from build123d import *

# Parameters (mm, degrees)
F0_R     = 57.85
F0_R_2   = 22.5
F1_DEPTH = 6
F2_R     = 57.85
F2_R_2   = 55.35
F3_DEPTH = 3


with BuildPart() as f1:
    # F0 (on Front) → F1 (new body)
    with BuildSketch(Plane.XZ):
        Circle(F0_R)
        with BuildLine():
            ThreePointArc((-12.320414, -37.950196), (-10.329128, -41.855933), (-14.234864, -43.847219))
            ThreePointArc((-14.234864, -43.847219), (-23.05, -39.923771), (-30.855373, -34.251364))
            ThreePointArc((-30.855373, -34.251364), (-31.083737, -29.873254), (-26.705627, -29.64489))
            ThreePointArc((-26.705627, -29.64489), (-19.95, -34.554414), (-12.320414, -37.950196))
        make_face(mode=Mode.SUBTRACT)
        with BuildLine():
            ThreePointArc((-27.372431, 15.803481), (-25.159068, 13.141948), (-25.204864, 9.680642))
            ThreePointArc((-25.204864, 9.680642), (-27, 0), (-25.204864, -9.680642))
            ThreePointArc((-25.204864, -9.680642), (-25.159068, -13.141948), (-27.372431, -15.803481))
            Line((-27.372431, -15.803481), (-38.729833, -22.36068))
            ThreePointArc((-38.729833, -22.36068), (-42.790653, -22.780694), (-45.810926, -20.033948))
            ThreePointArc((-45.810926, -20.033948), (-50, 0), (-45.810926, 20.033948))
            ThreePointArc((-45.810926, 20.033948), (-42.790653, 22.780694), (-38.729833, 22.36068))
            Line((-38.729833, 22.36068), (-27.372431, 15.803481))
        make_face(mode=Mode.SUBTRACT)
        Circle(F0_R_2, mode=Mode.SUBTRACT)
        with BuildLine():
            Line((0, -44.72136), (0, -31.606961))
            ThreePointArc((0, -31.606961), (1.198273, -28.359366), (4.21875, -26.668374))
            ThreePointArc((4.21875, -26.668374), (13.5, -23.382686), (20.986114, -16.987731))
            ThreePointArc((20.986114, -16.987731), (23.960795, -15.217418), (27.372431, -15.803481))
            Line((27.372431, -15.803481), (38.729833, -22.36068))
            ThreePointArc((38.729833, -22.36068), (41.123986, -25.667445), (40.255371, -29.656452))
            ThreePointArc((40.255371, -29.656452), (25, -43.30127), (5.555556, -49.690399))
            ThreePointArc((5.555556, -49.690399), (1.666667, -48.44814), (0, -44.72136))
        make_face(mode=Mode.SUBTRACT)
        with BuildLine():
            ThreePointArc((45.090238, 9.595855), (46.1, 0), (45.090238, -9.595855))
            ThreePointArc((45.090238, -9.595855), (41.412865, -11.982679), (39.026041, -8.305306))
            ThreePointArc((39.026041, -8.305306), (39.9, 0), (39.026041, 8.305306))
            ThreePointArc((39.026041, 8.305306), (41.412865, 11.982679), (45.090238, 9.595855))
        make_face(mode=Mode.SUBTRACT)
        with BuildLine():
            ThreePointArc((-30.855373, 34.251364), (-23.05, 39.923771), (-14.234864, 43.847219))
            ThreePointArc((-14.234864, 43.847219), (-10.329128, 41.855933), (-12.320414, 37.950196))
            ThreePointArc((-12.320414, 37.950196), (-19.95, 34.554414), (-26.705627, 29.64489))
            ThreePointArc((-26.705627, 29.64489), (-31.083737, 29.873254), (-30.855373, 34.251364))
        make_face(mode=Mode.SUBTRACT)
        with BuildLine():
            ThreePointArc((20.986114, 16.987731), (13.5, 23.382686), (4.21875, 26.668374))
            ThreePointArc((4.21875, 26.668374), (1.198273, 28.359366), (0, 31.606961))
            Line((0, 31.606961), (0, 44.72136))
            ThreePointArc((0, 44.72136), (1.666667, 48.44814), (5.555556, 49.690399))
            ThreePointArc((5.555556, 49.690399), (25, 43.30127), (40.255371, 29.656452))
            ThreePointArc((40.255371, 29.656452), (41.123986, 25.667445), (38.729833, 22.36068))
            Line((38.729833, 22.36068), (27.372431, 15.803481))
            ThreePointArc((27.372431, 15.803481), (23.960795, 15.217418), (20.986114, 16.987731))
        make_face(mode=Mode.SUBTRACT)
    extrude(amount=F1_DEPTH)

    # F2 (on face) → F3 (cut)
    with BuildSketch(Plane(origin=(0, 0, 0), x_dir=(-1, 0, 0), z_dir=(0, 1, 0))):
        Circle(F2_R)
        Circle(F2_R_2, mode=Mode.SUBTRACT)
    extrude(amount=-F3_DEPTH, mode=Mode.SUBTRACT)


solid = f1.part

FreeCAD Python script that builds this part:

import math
import FreeCAD as App
import Part
import Sketcher
from FreeCAD import Vector
Q = App.Units.Quantity

doc = App.newDocument("Part")
body = doc.addObject("PartDesign::Body", "Body")

sketch1 = body.newObject("Sketcher::SketchObject", "Sketch")
sketch1.AttachmentSupport = (doc.getObject("XZ_Plane"), [""])
sketch1.MapMode = "FlatFace"
sketch1.addGeometry([
    Part.Circle(Vector(0, 0, 0), Vector(0, 0, 1), 57.9),
    Part.ArcOfCircle(Part.Circle(Vector(0, 0, 0), Vector(0, 0, 1), 39.9), math.radians(-132), math.radians(-108)),
    Part.ArcOfCircle(Part.Circle(Vector(-13.3, -40.9, 0), Vector(0, 0, 1), 3.1), math.radians(-108), math.radians(72)),
    Part.ArcOfCircle(Part.Circle(Vector(0, 0, 0), Vector(0, 0, 1), 46.1), math.radians(-132), math.radians(-108)),
    Part.ArcOfCircle(Part.Circle(Vector(-28.8, -31.9, 0), Vector(0, 0, 1), 3.1), math.radians(48), math.radians(228)),
    Part.ArcOfCircle(Part.Circle(Vector(5, -44.7, 0), Vector(0, 0, 1), 5), math.radians(180), math.radians(276)),
    Part.LineSegment(Vector(0, -44.7, 0), Vector(0, -31.6, 0)),
    Part.ArcOfCircle(Part.Circle(Vector(5, -31.6, 0), Vector(0, 0, 1), 5), math.radians(99), math.radians(180)),
    Part.ArcOfCircle(Part.Circle(Vector(0, 0, 0), Vector(0, 0, 1), 27), math.radians(-81), math.radians(-39)),
    Part.ArcOfCircle(Part.Circle(Vector(24.9, -20.1, 0), Vector(0, 0, 1), 5), math.radians(60), math.radians(141)),
    Part.LineSegment(Vector(27.4, -15.8, 0), Vector(38.7, -22.4, 0)),
    Part.ArcOfCircle(Part.Circle(Vector(36.2, -26.7, 0), Vector(0, 0, 1), 5), math.radians(-36), math.radians(60)),
    Part.ArcOfCircle(Part.Circle(Vector(0, 0, 0), Vector(0, 0, 1), 50), math.radians(-84), math.radians(-36)),
    Part.LineSegment(Vector(-38.7, 22.4, 0), Vector(-27.4, 15.8, 0)),
    Part.ArcOfCircle(Part.Circle(Vector(-29.9, 11.5, 0), Vector(0, 0, 1), 5), math.radians(-21), math.radians(60)),
    Part.ArcOfCircle(Part.Circle(Vector(0, 0, 0), Vector(0, 0, 1), 27), math.radians(159), math.radians(201)),
    Part.ArcOfCircle(Part.Circle(Vector(-29.9, -11.5, 0), Vector(0, 0, 1), 5), math.radians(-60), math.radians(21)),
    Part.LineSegment(Vector(-27.4, -15.8, 0), Vector(-38.7, -22.4, 0)),
    Part.ArcOfCircle(Part.Circle(Vector(-41.2, -18, 0), Vector(0, 0, 1), 5), math.radians(-156), math.radians(-60)),
    Part.ArcOfCircle(Part.Circle(Vector(0, 0, 0), Vector(0, 0, 1), 50), math.radians(156), math.radians(204)),
    Part.ArcOfCircle(Part.Circle(Vector(-41.2, 18, 0), Vector(0, 0, 1), 5), math.radians(60), math.radians(156)),
    Part.ArcOfCircle(Part.Circle(Vector(-28.8, 31.9, 0), Vector(0, 0, 1), 3.1), math.radians(132), math.radians(312)),
    Part.ArcOfCircle(Part.Circle(Vector(0, 0, 0), Vector(0, 0, 1), 46.1), math.radians(108), math.radians(132)),
    Part.ArcOfCircle(Part.Circle(Vector(-13.3, 40.9, 0), Vector(0, 0, 1), 3.1), math.radians(-72), math.radians(108)),
    Part.ArcOfCircle(Part.Circle(Vector(0, 0, 0), Vector(0, 0, 1), 39.9), math.radians(108), math.radians(132)),
    Part.Circle(Vector(0, 0, 0), Vector(0, 0, 1), 22.5),
    Part.ArcOfCircle(Part.Circle(Vector(42.1, 9, 0), Vector(0, 0, 1), 3.1), math.radians(12), math.radians(192)),
    Part.ArcOfCircle(Part.Circle(Vector(0, 0, 0), Vector(0, 0, 1), 46.1), math.radians(-12), math.radians(12)),
    Part.ArcOfCircle(Part.Circle(Vector(42.1, -9, 0), Vector(0, 0, 1), 3.1), math.radians(168), math.radians(348)),
    Part.ArcOfCircle(Part.Circle(Vector(0, 0, 0), Vector(0, 0, 1), 39.9), math.radians(-12), math.radians(12)),
    Part.ArcOfCircle(Part.Circle(Vector(24.9, 20.1, 0), Vector(0, 0, 1), 5), math.radians(-141), math.radians(-60)),
    Part.ArcOfCircle(Part.Circle(Vector(0, 0, 0), Vector(0, 0, 1), 27), math.radians(39), math.radians(81)),
    Part.ArcOfCircle(Part.Circle(Vector(5, 31.6, 0), Vector(0, 0, 1), 5), math.radians(180), math.radians(261)),
    Part.LineSegment(Vector(0, 31.6, 0), Vector(0, 44.7, 0)),
    Part.ArcOfCircle(Part.Circle(Vector(5, 44.7, 0), Vector(0, 0, 1), 5), math.radians(84), math.radians(180)),
    Part.ArcOfCircle(Part.Circle(Vector(0, 0, 0), Vector(0, 0, 1), 50), math.radians(36), math.radians(84)),
    Part.ArcOfCircle(Part.Circle(Vector(36.2, 26.7, 0), Vector(0, 0, 1), 5), math.radians(-60), math.radians(36)),
    Part.LineSegment(Vector(38.7, 22.4, 0), Vector(27.4, 15.8, 0)),
], False)
sketch1.addConstraint([
    Sketcher.Constraint("Tangent", 1, 2, 2, 2),
    Sketcher.Constraint("Tangent", 2, 1, 3, 2),
    Sketcher.Constraint("Tangent", 3, 1, 4, 2),
    Sketcher.Constraint("Tangent", 4, 1, 1, 1),
    Sketcher.Constraint("Tangent", 5, 1, 6, 1),
    Sketcher.Constraint("Tangent", 6, 2, 7, 2),
    Sketcher.Constraint("Tangent", 7, 1, 8, 1),
    Sketcher.Constraint("Tangent", 8, 2, 9, 2),
    Sketcher.Constraint("Tangent", 9, 1, 10, 1),
    Sketcher.Constraint("Tangent", 10, 2, 11, 2),
    Sketcher.Constraint("Tangent", 11, 1, 12, 2),
    Sketcher.Constraint("Tangent", 12, 1, 5, 2),
    Sketcher.Constraint("Tangent", 13, 2, 14, 2),
    Sketcher.Constraint("Tangent", 14, 1, 15, 1),
    Sketcher.Constraint("Tangent", 15, 2, 16, 2),
    Sketcher.Constraint("Tangent", 16, 1, 17, 1),
    Sketcher.Constraint("Tangent", 17, 2, 18, 2),
    Sketcher.Constraint("Tangent", 18, 1, 19, 2),
    Sketcher.Constraint("Tangent", 19, 1, 20, 2),
    Sketcher.Constraint("Tangent", 20, 1, 13, 1),
    Sketcher.Constraint("Tangent", 21, 1, 22, 2),
    Sketcher.Constraint("Tangent", 22, 1, 23, 2),
    Sketcher.Constraint("Tangent", 23, 1, 24, 1),
    Sketcher.Constraint("Tangent", 24, 2, 21, 2),
    Sketcher.Constraint("Tangent", 26, 1, 27, 2),
    Sketcher.Constraint("Tangent", 27, 1, 28, 2),
    Sketcher.Constraint("Tangent", 28, 1, 29, 1),
    Sketcher.Constraint("Tangent", 29, 2, 26, 2),
    Sketcher.Constraint("Tangent", 30, 1, 31, 1),
    Sketcher.Constraint("Tangent", 31, 2, 32, 2),
    Sketcher.Constraint("Tangent", 32, 1, 33, 1),
    Sketcher.Constraint("Tangent", 33, 2, 34, 2),
    Sketcher.Constraint("Tangent", 34, 1, 35, 2),
    Sketcher.Constraint("Tangent", 35, 1, 36, 2),
    Sketcher.Constraint("Tangent", 36, 1, 37, 1),
    Sketcher.Constraint("Tangent", 37, 2, 30, 2),
    Sketcher.Constraint("Vertical", 6),
    Sketcher.Constraint("Vertical", 33),
    Sketcher.Constraint("Coincident", 0, 3, -1, 1),
    Sketcher.Constraint("Coincident", 3, 3, -1, 1),
    Sketcher.Constraint("Coincident", 8, 3, -1, 1),
    Sketcher.Constraint("Coincident", 12, 3, -1, 1),
    Sketcher.Constraint("Coincident", 15, 3, -1, 1),
    Sketcher.Constraint("Coincident", 19, 3, -1, 1),
    Sketcher.Constraint("Coincident", 22, 3, -1, 1),
    Sketcher.Constraint("Coincident", 25, 3, -1, 1),
    Sketcher.Constraint("Coincident", 27, 3, -1, 1),
    Sketcher.Constraint("Coincident", 29, 3, -1, 1),
    Sketcher.Constraint("Coincident", 31, 3, -1, 1),
    Sketcher.Constraint("Coincident", 35, 3, -1, 1),
    Sketcher.Constraint("Coincident", 24, 3, 22, 3),
    Sketcher.Constraint("Equal", 2, 4),
    Sketcher.Constraint("Equal", 5, 7),
    Sketcher.Constraint("Equal", 7, 9),
    Sketcher.Constraint("Equal", 9, 11),
    Sketcher.Constraint("Equal", 11, 14),
    Sketcher.Constraint("Equal", 8, 15),
    Sketcher.Constraint("Equal", 14, 16),
    Sketcher.Constraint("Equal", 16, 18),
    Sketcher.Constraint("Equal", 12, 19),
    Sketcher.Constraint("Equal", 18, 20),
    Sketcher.Constraint("Equal", 4, 21),
    Sketcher.Constraint("Equal", 3, 22),
    Sketcher.Constraint("Equal", 1, 24),
    Sketcher.Constraint("Equal", 23, 26),
    Sketcher.Constraint("Equal", 20, 30),
    Sketcher.Constraint("Equal", 15, 31),
    Sketcher.Constraint("Equal", 30, 32),
    Sketcher.Constraint("Equal", 32, 34),
    Sketcher.Constraint("Equal", 19, 35),
    Sketcher.Constraint("Equal", 34, 36),
    Sketcher.Constraint("Symmetric", 9, 1, 13, 2, -1, 1),
    Sketcher.Constraint("Symmetric", 6, 2, 32, 1, -1, 1),
    Sketcher.Constraint("Symmetric", 17, 2, 36, 1, -1, 1),
    Sketcher.Constraint("Symmetric", 9, 1, 16, 1, -2),
    Sketcher.Constraint("Parallel", 10, 13),
    Sketcher.Constraint("Vertical", 4, 3, 21, 3),
    Sketcher.Constraint("Vertical", 2, 3, 23, 3),
    Sketcher.Constraint("Vertical", 26, 3, 28, 3),
    Sketcher.Constraint("Diameter", 25, Q("45 mm")),
    Sketcher.Constraint("Radius", 5, Q("4.999999 mm")),
    Sketcher.Constraint("Radius", 8, Q("27 mm")),
    Sketcher.Constraint("Radius", 12, Q("50.000001 mm")),
    Sketcher.Constraint("Diameter", 0, Q("115.7 mm")),
    Sketcher.Constraint("Radius", 2, Q("3.1 mm")),
    Sketcher.Constraint("Radius", 27, Q("46.099998 mm")),
    Sketcher.Constraint("Angle", 10, Q("-30 deg")),
    Sketcher.Constraint("Radius", 3, Q("46.099991 mm")),
    Sketcher.Constraint("DistanceX", 4, 3, -1, 1, Q("28.7805 mm")),
    Sketcher.Constraint("DistanceX", 2, 3, -1, 1, Q("13.277639 mm")),
    Sketcher.Constraint("DistanceX", -1, 1, 26, 3, Q("42.05814 mm")),
])
pad1 = body.newObject("PartDesign::Pad", "Pad")
pad1.Profile = sketch1
pad1.Length = 6

sketch2 = body.newObject("Sketcher::SketchObject", "Sketch001")
sketch2.AttachmentSupport = (doc.getObject("XZ_Plane"), [""])
sketch2.MapMode = "FlatFace"
sketch2.addGeometry([
    Part.Circle(Vector(0, 0, 0), Vector(0, 0, 1), 58),
    Part.Circle(Vector(0, 0, 0), Vector(0, 0, 1), 55),
], False)
sketch2.addConstraint([
    Sketcher.Constraint("Coincident", 0, 3, -1, 1),
    Sketcher.Constraint("Coincident", 1, 3, -1, 1),
    Sketcher.Constraint("Diameter", 0, Q("115.7 mm")),
    Sketcher.Constraint("Diameter", 1, Q("110.7 mm")),
])
pocket1 = body.newObject("PartDesign::Pocket", "Pocket")
pocket1.Profile = sketch2
pocket1.Length = 3
pocket1.Reversed = True

doc.recompute()
